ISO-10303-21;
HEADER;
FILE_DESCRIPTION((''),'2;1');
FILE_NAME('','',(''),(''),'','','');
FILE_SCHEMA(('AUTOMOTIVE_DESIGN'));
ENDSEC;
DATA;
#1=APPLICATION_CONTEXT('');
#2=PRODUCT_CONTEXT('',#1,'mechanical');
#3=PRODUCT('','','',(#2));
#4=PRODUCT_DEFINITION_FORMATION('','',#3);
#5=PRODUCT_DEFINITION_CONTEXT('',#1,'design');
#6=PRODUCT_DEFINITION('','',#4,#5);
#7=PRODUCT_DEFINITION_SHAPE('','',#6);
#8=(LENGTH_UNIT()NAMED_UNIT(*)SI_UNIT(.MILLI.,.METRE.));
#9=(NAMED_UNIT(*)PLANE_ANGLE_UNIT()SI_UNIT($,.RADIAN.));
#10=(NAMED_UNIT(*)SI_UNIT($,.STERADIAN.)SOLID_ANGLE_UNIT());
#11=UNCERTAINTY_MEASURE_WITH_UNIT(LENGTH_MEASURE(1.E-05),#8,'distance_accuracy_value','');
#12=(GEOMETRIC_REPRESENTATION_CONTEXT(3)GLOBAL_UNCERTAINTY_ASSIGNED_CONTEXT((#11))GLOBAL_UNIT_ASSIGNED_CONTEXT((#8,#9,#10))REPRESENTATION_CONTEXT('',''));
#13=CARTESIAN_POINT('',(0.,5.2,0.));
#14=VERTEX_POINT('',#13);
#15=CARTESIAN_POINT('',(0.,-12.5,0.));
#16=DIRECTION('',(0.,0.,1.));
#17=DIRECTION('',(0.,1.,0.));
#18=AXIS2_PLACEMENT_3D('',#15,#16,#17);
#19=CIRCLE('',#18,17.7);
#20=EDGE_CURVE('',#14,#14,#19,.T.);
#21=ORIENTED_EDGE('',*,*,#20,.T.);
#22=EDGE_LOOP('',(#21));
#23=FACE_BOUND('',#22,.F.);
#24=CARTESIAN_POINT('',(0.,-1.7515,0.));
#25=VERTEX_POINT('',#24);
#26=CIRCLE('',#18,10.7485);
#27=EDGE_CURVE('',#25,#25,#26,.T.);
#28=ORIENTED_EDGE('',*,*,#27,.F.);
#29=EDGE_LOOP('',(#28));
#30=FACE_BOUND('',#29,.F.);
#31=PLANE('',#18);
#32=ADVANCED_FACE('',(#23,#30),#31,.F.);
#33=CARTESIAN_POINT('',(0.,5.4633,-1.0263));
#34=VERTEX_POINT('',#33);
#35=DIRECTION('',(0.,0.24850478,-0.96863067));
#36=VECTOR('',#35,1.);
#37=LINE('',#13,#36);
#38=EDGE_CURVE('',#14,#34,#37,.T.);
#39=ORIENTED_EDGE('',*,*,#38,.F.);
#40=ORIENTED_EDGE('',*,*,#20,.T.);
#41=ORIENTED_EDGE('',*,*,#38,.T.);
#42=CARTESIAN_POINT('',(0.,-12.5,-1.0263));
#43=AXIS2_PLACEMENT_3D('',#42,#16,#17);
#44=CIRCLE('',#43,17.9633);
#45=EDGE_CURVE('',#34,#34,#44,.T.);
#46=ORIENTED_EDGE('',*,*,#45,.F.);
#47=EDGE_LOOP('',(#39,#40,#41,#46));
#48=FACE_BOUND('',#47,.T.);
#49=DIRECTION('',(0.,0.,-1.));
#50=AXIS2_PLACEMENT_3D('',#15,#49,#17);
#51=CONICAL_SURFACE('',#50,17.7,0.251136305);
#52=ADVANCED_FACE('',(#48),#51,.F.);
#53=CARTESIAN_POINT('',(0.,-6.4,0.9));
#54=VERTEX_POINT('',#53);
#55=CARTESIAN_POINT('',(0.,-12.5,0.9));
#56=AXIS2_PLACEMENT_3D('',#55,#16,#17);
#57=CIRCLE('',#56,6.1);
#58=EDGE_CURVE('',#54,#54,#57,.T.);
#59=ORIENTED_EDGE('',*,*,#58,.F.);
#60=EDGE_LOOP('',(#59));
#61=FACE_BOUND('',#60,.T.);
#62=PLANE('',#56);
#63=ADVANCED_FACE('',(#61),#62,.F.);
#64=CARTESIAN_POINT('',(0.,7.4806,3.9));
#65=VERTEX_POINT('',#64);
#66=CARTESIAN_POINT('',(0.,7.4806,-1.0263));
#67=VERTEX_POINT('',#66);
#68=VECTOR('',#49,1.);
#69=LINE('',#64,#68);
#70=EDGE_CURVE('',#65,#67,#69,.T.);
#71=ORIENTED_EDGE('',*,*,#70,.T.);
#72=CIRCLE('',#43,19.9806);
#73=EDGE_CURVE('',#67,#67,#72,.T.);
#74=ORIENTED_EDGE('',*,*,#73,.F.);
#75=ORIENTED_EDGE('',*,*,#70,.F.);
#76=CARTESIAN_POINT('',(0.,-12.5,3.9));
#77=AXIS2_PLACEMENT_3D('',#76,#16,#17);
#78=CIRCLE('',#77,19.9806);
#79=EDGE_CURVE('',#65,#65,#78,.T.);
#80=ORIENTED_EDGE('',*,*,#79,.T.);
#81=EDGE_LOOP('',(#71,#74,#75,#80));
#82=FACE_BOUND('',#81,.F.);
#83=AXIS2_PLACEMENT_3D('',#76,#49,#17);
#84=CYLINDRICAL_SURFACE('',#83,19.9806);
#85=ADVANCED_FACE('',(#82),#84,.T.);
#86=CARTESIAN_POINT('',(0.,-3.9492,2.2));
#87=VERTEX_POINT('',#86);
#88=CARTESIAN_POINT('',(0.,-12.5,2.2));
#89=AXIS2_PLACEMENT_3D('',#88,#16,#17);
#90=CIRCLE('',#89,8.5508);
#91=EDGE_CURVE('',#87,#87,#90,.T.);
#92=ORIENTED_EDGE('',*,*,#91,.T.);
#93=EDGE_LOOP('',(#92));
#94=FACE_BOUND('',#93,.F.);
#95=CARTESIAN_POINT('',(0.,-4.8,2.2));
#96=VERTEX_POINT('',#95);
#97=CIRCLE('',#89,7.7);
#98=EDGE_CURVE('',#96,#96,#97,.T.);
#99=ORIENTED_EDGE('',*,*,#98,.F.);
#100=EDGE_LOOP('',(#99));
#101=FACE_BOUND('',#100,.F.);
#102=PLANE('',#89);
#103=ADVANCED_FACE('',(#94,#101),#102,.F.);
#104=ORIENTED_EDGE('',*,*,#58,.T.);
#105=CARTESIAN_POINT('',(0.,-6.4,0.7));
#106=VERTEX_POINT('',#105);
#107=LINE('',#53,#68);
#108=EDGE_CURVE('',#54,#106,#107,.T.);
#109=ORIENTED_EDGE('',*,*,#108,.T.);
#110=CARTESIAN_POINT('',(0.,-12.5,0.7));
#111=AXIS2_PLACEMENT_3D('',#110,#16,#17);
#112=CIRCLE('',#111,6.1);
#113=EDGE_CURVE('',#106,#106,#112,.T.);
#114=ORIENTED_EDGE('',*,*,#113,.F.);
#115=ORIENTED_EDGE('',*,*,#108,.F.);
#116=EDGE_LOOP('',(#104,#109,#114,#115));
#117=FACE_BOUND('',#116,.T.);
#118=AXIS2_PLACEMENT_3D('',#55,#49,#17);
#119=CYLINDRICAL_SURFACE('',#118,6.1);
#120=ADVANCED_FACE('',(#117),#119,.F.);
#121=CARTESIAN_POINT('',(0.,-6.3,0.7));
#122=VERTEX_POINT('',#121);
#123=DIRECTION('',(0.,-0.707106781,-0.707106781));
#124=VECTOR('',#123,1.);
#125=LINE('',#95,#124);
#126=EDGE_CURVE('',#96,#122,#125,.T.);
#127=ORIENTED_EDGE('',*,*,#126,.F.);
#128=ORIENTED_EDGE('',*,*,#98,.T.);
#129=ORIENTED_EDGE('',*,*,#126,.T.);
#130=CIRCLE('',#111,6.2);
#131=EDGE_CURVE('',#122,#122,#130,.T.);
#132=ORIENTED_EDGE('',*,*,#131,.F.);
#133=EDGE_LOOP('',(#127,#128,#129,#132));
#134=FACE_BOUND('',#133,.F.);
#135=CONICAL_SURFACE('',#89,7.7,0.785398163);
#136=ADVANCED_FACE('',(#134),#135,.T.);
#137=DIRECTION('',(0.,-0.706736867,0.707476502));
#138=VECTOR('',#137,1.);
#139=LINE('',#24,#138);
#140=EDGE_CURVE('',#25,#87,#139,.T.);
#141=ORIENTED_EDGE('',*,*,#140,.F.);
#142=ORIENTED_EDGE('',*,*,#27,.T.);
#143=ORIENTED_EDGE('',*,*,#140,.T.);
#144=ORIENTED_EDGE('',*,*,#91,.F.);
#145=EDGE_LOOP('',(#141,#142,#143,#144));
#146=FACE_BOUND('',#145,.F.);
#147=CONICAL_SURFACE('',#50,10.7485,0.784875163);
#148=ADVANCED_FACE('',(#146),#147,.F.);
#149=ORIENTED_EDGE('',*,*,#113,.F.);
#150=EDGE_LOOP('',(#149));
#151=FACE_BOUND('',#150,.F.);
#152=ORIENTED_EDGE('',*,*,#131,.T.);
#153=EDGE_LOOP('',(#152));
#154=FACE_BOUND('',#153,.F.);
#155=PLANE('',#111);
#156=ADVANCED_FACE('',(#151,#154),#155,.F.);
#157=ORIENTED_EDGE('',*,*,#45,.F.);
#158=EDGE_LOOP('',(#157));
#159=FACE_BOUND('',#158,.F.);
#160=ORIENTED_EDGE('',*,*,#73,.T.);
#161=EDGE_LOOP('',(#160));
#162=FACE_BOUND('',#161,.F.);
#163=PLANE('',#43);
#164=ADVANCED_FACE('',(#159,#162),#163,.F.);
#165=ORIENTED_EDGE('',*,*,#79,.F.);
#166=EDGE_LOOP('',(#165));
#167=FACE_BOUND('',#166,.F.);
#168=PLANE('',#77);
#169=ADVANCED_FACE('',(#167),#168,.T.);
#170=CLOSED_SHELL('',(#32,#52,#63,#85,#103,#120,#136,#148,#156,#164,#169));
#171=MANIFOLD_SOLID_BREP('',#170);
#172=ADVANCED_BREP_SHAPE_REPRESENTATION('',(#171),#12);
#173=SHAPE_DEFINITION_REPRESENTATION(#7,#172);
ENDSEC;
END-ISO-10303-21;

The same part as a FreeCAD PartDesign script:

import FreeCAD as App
import Part
import Sketcher

V = App.Vector
Q = App.Units.Quantity


def add_polygon(sketch, points):
    """Adds a closed chain of lines whose ends are joined by coincident constraints."""
    first, n = sketch.GeometryCount, len(points)
    for a, b in zip(points, points[1:] + points[:1]):
        sketch.addGeometry(Part.LineSegment(App.Vector(*a, 0), App.Vector(*b, 0)), False)
    for i in range(n):
        sketch.addConstraint(Sketcher.Constraint("Coincident", first + i, 2, first + (i + 1) % n, 1))

doc = App.newDocument("Part")
body = doc.addObject("PartDesign::Body", "Body")

sketch1 = body.newObject("Sketcher::SketchObject", "Sketch")
sketch1.AttachmentSupport = (doc.getObject("YZ_Plane"), [""])
sketch1.MapMode = "FlatFace"
add_polygon(sketch1, [(-1.75, 0), (5.2, 0), (5.46, -1.03), (7.48, -1.03), (7.48, 3.9), (-12.5, 3.9), (-12.5, 0.9), (-6.4, 0.9), (-6.4, 0.7), (-6.3, 0.7), (-4.8, 2.2), (-3.95, 2.2)])
sketch1.addGeometry(Part.LineSegment(V(-12.5, -1.03, 0), V(-12.5, 3.9, 0)), True)
sketch1.addConstraint([
    Sketcher.Constraint("Horizontal", 0),
    Sketcher.Constraint("Horizontal", 2),
    Sketcher.Constraint("Vertical", 3),
    Sketcher.Constraint("Horizontal", 4),
    Sketcher.Constraint("Vertical", 5),
    Sketcher.Constraint("Horizontal", 6),
    Sketcher.Constraint("Vertical", 7),
    Sketcher.Constraint("Horizontal", 8),
    Sketcher.Constraint("Horizontal", 10),
    Sketcher.Constraint("Vertical", 12),
    Sketcher.Constraint("Coincident", 12, 2, 4, 2),
    Sketcher.Constraint("PointOnObject", 0, 2, -1),
    Sketcher.Constraint("Horizontal", 2, 2, 12, 1),
    Sketcher.Constraint("DistanceY", 5, 2, 5, 1, Q("3 mm")),
    Sketcher.Constraint("DistanceX", 6, 1, 6, 2, Q("6.1 mm")),
    Sketcher.Constraint("DistanceY", 7, 2, 7, 1, Q("0.2 mm")),
    Sketcher.Constraint("Angle", 9, Q("45 deg")),
    Sketcher.Constraint("DistanceX", 8, 1, 8, 2, Q("0.1 mm")),
    Sketcher.Constraint("DistanceX", -1, 1, 0, 2, Q("5.2 mm")),
    Sketcher.Constraint("DistanceY", -1, 1, 3, 2, Q("3.9 mm")),
    Sketcher.Constraint("DistanceX", 4, 2, -1, 1, Q("12.5 mm")),
    Sketcher.Constraint("DistanceX", 9, 2, -1, 1, Q("4.8 mm")),
    Sketcher.Constraint("Angle", 1, Q("-75.611 deg")),
    Sketcher.Constraint("Angle", 11, Q("-45.03 deg")),
    Sketcher.Constraint("DistanceX", 0, 1, 0, 2, Q("6.9515 mm")),
    Sketcher.Constraint("DistanceX", 2, 1, 2, 2, Q("2.0173 mm")),
    Sketcher.Constraint("DistanceX", 4, 2, 4, 1, Q("19.9806 mm")),
])
revolution = body.newObject("PartDesign::Revolution", "Revolution")
revolution.Profile = sketch1
revolution.ReferenceAxis = (sketch1, ["Axis0"])
revolution.Angle = 360

doc.recompute()
